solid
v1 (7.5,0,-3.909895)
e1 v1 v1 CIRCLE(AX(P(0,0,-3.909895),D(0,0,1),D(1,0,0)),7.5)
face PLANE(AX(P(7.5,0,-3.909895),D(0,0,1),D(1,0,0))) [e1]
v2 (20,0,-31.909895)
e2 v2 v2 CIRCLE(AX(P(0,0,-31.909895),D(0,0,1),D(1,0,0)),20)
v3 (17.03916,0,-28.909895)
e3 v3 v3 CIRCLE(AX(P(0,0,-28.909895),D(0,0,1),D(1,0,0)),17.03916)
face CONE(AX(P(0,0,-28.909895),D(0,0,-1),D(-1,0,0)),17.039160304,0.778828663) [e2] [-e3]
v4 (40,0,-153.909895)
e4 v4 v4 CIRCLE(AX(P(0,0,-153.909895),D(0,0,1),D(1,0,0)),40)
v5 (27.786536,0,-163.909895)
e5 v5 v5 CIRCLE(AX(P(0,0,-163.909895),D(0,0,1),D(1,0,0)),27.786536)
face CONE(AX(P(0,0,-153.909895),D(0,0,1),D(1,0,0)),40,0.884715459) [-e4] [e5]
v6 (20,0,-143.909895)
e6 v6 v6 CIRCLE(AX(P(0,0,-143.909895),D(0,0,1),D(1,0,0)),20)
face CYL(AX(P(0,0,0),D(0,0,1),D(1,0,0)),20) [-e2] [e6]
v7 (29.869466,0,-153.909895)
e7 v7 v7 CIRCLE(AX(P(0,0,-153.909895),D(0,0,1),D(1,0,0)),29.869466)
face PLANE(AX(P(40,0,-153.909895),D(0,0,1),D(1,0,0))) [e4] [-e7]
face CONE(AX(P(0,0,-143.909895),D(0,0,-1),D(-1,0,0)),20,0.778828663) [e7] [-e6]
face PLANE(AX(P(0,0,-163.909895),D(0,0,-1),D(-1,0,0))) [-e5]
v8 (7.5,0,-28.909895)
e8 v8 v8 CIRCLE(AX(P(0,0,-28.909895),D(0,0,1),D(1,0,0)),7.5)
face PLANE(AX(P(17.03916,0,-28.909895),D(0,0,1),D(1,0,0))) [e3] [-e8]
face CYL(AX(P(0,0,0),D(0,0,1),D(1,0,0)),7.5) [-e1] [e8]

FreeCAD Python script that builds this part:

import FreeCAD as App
import Part
import Sketcher
from FreeCAD import Vector


def add_polygon(sketch, points):
    """Adds a closed chain of lines whose ends are joined by coincident constraints."""
    first, n = sketch.GeometryCount, len(points)
    for a, b in zip(points, points[1:] + points[:1]):
        sketch.addGeometry(Part.LineSegment(App.Vector(*a, 0), App.Vector(*b, 0)), False)
    for i in range(n):
        sketch.addConstraint(Sketcher.Constraint("Coincident", first + i, 2, first + (i + 1) % n, 1))

doc = App.newDocument("Part")
body = doc.addObject("PartDesign::Body", "Body")

# Sketch on XZ plane
sketch1 = doc.addObject("Sketcher::SketchObject", "Sketch")
body.addObject(sketch1)
sketch1.AttachmentSupport = (doc.XZ_Plane, [""])
sketch1.MapMode = "FlatFace"
add_polygon(sketch1, [(27.786536, -163.909895), (0, -163.909895), (0, -3.909895), (7.5, -3.909895), (7.5, -28.909895), (17.03916, -28.909895), (20, -31.909895), (20, -143.909895), (29.869466, -153.909895), (40, -153.909895)])  # lines 0-9
sketch1.addConstraint([
    Sketcher.Constraint("Horizontal", 0),
    Sketcher.Constraint("Vertical", 1),
    Sketcher.Constraint("Horizontal", 2),
    Sketcher.Constraint("Vertical", 3),
    Sketcher.Constraint("Horizontal", 4),
    Sketcher.Constraint("Vertical", 6),
    Sketcher.Constraint("Horizontal", 8),
    Sketcher.Constraint("PointOnObject", 0, 2, -2),
    Sketcher.Constraint("Parallel", 5, 7),
    Sketcher.Constraint("DistanceY", 1, 1, 1, 2, 160.0),
    Sketcher.Constraint("DistanceY", 3, 2, 3, 1, 25.0),
    Sketcher.Constraint("DistanceY", 6, 2, 6, 1, 112.0),
    Sketcher.Constraint("DistanceX", 2, 1, 2, 2, 7.5),
    Sketcher.Constraint("DistanceX", -1, 1, 5, 2, 20.0),
    Sketcher.Constraint("DistanceX", -1, 1, 8, 2, 40.0),
    Sketcher.Constraint("DistanceY", 5, 2, 4, 2, 3.0),
    Sketcher.Constraint("DistanceY", 7, 2, 6, 2, 10.0),
    Sketcher.Constraint("DistanceX", 4, 1, 4, 2, 9.53916),
    Sketcher.Constraint("Distance", 9, 15.785078),
    Sketcher.Constraint("DistanceY", 0, 2, -1, 1, 163.909895),
])
revolution = doc.addObject("PartDesign::Revolution", "Revolution")
body.addObject(revolution)
revolution.Profile = sketch1
revolution.ReferenceAxis = (sketch1, ["V_Axis"])
revolution.Angle = 360

doc.recompute()
